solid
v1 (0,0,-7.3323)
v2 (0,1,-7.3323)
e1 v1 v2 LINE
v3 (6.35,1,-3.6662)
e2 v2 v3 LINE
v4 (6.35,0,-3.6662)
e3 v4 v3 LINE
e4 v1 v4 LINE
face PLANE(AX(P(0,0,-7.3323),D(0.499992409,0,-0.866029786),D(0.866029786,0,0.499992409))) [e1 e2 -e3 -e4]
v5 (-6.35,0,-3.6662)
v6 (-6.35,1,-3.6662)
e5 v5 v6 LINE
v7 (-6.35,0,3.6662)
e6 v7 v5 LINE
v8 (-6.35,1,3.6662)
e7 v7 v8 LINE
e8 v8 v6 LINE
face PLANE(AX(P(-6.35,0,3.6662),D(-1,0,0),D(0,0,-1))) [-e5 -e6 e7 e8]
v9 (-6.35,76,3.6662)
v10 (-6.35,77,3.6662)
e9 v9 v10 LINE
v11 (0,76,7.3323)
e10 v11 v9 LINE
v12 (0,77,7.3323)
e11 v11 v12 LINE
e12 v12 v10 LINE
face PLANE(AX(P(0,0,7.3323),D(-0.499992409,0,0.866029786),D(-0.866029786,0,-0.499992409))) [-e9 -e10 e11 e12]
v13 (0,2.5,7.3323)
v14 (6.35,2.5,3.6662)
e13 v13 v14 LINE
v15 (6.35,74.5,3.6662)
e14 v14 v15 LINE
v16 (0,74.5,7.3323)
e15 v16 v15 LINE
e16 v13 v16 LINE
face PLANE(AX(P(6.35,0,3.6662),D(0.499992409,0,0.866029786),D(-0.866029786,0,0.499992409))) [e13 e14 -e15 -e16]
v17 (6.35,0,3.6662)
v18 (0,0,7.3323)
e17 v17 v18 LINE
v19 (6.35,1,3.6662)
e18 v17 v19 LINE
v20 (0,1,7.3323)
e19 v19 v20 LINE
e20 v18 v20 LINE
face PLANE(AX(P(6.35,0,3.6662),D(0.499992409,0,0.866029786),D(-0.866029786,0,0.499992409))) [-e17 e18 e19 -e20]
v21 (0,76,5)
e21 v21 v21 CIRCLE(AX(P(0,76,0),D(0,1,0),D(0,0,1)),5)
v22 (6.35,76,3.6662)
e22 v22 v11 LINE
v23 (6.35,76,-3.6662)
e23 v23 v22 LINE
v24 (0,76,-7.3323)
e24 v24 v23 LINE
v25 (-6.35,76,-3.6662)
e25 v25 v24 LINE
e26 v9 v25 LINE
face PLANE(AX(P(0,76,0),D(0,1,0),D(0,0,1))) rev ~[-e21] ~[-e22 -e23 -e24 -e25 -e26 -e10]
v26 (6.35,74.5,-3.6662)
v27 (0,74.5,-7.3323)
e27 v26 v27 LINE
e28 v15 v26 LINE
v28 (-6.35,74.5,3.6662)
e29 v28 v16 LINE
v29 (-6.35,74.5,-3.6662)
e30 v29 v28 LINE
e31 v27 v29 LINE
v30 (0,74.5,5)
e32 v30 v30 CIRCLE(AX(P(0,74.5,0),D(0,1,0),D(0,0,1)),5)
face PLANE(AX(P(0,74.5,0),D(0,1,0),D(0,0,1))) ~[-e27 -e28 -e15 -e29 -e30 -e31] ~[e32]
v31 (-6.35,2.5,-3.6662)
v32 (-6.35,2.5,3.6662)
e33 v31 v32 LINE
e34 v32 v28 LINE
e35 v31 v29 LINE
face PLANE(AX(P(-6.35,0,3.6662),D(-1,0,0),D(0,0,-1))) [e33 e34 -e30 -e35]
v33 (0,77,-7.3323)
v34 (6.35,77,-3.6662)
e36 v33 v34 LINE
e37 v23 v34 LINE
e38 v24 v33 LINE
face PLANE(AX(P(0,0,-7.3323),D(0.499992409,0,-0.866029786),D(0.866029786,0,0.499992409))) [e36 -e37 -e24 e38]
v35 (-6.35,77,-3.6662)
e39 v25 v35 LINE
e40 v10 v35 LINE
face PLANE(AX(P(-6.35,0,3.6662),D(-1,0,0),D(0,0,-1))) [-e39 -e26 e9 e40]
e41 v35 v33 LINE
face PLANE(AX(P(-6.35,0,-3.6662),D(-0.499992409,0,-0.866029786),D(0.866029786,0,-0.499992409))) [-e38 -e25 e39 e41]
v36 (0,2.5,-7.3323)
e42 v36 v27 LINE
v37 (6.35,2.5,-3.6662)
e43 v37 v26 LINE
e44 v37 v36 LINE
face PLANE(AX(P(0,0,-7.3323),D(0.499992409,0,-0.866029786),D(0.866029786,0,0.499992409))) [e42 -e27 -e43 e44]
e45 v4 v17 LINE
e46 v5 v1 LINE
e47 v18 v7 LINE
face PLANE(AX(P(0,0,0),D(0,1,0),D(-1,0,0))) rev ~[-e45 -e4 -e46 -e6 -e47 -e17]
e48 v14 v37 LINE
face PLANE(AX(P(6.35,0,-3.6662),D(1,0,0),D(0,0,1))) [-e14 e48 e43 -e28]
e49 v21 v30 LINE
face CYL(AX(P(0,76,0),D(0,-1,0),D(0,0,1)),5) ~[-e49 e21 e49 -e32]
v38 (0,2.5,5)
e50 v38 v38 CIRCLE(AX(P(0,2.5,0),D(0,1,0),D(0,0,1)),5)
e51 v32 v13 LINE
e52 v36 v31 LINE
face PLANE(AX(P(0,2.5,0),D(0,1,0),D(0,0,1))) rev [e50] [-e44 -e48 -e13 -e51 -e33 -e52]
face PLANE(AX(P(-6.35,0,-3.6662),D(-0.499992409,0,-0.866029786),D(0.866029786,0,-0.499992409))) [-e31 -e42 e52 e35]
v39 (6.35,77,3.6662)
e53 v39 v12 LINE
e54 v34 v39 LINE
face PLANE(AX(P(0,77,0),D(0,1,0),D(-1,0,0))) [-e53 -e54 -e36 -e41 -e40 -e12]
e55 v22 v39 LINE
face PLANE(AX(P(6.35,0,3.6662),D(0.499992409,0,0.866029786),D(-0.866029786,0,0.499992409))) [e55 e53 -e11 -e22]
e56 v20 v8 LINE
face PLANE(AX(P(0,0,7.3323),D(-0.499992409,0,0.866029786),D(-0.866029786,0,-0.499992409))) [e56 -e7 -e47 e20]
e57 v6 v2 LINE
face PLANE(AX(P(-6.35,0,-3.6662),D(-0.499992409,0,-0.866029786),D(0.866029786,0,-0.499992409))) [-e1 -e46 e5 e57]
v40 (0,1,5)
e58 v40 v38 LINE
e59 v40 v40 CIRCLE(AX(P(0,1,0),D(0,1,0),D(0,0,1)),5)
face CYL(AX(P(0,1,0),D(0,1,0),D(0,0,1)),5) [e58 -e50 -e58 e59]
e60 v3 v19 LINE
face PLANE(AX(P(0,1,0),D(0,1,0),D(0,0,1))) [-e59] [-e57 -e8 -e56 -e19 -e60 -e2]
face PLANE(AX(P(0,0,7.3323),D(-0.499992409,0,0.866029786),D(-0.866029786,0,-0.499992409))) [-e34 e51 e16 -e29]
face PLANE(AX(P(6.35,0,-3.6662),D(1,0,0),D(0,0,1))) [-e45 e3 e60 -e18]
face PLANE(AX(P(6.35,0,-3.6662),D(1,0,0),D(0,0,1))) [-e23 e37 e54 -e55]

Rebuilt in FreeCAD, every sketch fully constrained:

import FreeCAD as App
import Part
import Sketcher
Q = App.Units.Quantity

doc = App.newDocument("Part")
body = doc.addObject("PartDesign::Body", "Body")

sketch1 = body.newObject("Sketcher::SketchObject", "Sketch")
sketch1.AttachmentSupport = (doc.getObject("XZ_Plane"), [""])
sketch1.MapMode = "FlatFace"
sketch1.addGeometry(Part.LineSegment(App.Vector(0, 7, 0), App.Vector(6, 4, 0)), False)
sketch1.addGeometry(Part.LineSegment(App.Vector(6, 4, 0), App.Vector(6, -4, 0)), False)
sketch1.addGeometry(Part.LineSegment(App.Vector(6, -4, 0), App.Vector(0, -7, 0)), False)
sketch1.addGeometry(Part.LineSegment(App.Vector(0, -7, 0), App.Vector(-6, -4, 0)), False)
sketch1.addGeometry(Part.LineSegment(App.Vector(-6, -4, 0), App.Vector(-6, 4, 0)), False)
sketch1.addGeometry(Part.LineSegment(App.Vector(-6, 4, 0), App.Vector(0, 7, 0)), False)
sketch1.addConstraint(Sketcher.Constraint("Coincident", 0, 2, 1, 1))
sketch1.addConstraint(Sketcher.Constraint("Coincident", 1, 2, 2, 1))
sketch1.addConstraint(Sketcher.Constraint("Coincident", 2, 2, 3, 1))
sketch1.addConstraint(Sketcher.Constraint("Coincident", 3, 2, 4, 1))
sketch1.addConstraint(Sketcher.Constraint("Coincident", 4, 2, 5, 1))
sketch1.addConstraint(Sketcher.Constraint("Coincident", 5, 2, 0, 1))
sketch1.addConstraint(Sketcher.Constraint("Vertical", 1))
sketch1.addConstraint(Sketcher.Constraint("Vertical", 4))
sketch1.addConstraint(Sketcher.Constraint("Symmetric", 0, 2, 3, 2, -1, 1))
sketch1.addConstraint(Sketcher.Constraint("Symmetric", 2, 2, 5, 2, -1, 1))
sketch1.addConstraint(Sketcher.Constraint("PointOnObject", 2, 2, -2))
sketch1.addConstraint(Sketcher.Constraint("Parallel", 2, 5))
sketch1.addConstraint(Sketcher.Constraint("Horizontal", 1, 2, 3, 2))
sketch1.addConstraint(Sketcher.Constraint("DistanceX", 3, 2, 1, 2, 12.7))
sketch1.addConstraint(Sketcher.Constraint("Angle", 0, Q("-29.9995 deg")))
sketch1.addConstraint(Sketcher.Constraint("DistanceY", 1, 2, 1, 1, 7.3324))
pad1 = body.newObject("PartDesign::Pad", "Pad")
pad1.Profile = sketch1
pad1.Length = 77
pad1.Reversed = True

sketch2 = body.newObject("Sketcher::SketchObject", "Sketch001")
sketch2.AttachmentSupport = (doc.getObject("YZ_Plane"), [""])
sketch2.MapMode = "FlatFace"
sketch2.addGeometry(Part.LineSegment(App.Vector(2.5, 5, 0), App.Vector(2.5, 15, 0)), False)
sketch2.addGeometry(Part.LineSegment(App.Vector(2.5, 15, 0), App.Vector(1, 15, 0)), False)
sketch2.addGeometry(Part.LineSegment(App.Vector(1, 15, 0), App.Vector(1, 5, 0)), False)
sketch2.addGeometry(Part.LineSegment(App.Vector(1, 5, 0), App.Vector(2.5, 5, 0)), False)
sketch2.addGeometry(Part.LineSegment(App.Vector(76, 15, 0), App.Vector(74.5, 15, 0)), False)
sketch2.addGeometry(Part.LineSegment(App.Vector(74.5, 15, 0), App.Vector(74.5, 5, 0)), False)
sketch2.addGeometry(Part.LineSegment(App.Vector(74.5, 5, 0), App.Vector(76, 5, 0)), False)
sketch2.addGeometry(Part.LineSegment(App.Vector(76, 5, 0), App.Vector(76, 15, 0)), False)
sketch2.addConstraint(Sketcher.Constraint("Coincident", 0, 2, 1, 1))
sketch2.addConstraint(Sketcher.Constraint("Coincident", 1, 2, 2, 1))
sketch2.addConstraint(Sketcher.Constraint("Coincident", 2, 2, 3, 1))
sketch2.addConstraint(Sketcher.Constraint("Coincident", 3, 2, 0, 1))
sketch2.addConstraint(Sketcher.Constraint("Coincident", 4, 2, 5, 1))
sketch2.addConstraint(Sketcher.Constraint("Coincident", 5, 2, 6, 1))
sketch2.addConstraint(Sketcher.Constraint("Coincident", 6, 2, 7, 1))
sketch2.addConstraint(Sketcher.Constraint("Coincident", 7, 2, 4, 1))
sketch2.addConstraint(Sketcher.Constraint("Vertical", 0))
sketch2.addConstraint(Sketcher.Constraint("Horizontal", 1))
sketch2.addConstraint(Sketcher.Constraint("Vertical", 2))
sketch2.addConstraint(Sketcher.Constraint("Horizontal", 3))
sketch2.addConstraint(Sketcher.Constraint("Horizontal", 4))
sketch2.addConstraint(Sketcher.Constraint("Vertical", 5))
sketch2.addConstraint(Sketcher.Constraint("Horizontal", 6))
sketch2.addConstraint(Sketcher.Constraint("Vertical", 7))
sketch2.addConstraint(Sketcher.Constraint("Horizontal", 1, 2, 4, 2))
sketch2.addConstraint(Sketcher.Constraint("Horizontal", 3, 2, 5, 2))
sketch2.addConstraint(Sketcher.Constraint("Equal", 3, 4))
sketch2.addConstraint(Sketcher.Constraint("DistanceY", 0, 1, 0, 2, 10.0))
sketch2.addConstraint(Sketcher.Constraint("DistanceX", 1, 2, 1, 1, 1.5))
sketch2.addConstraint(Sketcher.Constraint("DistanceX", -1, 1, 1, 2, 1.0))
sketch2.addConstraint(Sketcher.Constraint("DistanceY", -1, 1, 2, 2, 5.0))
sketch2.addConstraint(Sketcher.Constraint("DistanceX", 0, 2, 4, 2, 72.0))
groove = body.newObject("PartDesign::Groove", "Groove")
groove.Profile = sketch2
groove.ReferenceAxis = (sketch2, ["H_Axis"])
groove.Angle = 360

doc.recompute()
